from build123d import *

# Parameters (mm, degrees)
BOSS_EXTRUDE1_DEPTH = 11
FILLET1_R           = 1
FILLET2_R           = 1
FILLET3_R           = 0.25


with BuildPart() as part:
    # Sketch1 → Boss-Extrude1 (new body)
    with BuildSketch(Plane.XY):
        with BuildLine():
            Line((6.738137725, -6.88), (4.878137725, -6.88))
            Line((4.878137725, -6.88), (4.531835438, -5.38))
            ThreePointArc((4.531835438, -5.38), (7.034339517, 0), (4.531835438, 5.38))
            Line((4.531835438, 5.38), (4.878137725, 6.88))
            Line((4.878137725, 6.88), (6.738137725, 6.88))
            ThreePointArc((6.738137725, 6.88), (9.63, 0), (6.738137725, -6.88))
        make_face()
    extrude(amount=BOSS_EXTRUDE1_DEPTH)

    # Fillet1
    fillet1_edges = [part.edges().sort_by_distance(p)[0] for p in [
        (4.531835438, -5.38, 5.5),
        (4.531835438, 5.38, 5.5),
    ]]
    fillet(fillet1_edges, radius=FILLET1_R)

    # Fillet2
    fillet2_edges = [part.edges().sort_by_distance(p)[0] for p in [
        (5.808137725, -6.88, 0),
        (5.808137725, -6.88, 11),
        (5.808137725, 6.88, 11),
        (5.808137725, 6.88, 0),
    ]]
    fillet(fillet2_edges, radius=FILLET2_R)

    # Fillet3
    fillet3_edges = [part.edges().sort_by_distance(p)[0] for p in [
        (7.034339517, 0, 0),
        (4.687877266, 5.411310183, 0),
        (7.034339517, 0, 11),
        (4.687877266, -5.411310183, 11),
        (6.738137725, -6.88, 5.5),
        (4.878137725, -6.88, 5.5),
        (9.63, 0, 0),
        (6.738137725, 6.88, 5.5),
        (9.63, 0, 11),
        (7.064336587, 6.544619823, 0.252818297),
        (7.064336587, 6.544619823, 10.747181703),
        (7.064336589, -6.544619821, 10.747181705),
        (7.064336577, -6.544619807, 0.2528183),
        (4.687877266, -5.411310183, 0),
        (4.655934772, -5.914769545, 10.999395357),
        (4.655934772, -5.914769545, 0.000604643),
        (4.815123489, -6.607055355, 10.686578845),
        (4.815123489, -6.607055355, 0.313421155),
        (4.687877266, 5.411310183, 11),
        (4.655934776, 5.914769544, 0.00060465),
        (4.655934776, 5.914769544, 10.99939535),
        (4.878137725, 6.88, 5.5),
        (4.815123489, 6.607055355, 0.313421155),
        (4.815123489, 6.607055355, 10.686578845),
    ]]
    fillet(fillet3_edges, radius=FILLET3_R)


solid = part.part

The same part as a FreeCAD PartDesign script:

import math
import FreeCAD as App
import Part
import Sketcher
Q = App.Units.Quantity


def edges_at(feature, points):
    """Names of the edges that pass closest to the given points."""
    edges = feature.Shape.Edges
    near = lambda p: min(range(len(edges)), key=lambda i: edges[i].distToShape(Part.Vertex(*p))[0])
    return sorted({f"Edge{near(p) + 1}" for p in points})

doc = App.newDocument("Part")
body = doc.addObject("PartDesign::Body", "Body")

sketch1 = body.newObject("Sketcher::SketchObject", "Sketch")
sketch1.AttachmentSupport = (doc.getObject("XY_Plane"), [""])
sketch1.MapMode = "FlatFace"
sketch1.addGeometry([
    Part.LineSegment(App.Vector(4.9, -6.9, 0), App.Vector(6.7, -6.9, 0)),
    Part.ArcOfCircle(Part.Circle(App.Vector(0, 0, 0), App.Vector(0, 0, 1), 9.6), math.radians(-46), math.radians(46)),
    Part.LineSegment(App.Vector(6.7, 6.9, 0), App.Vector(4.9, 6.9, 0)),
    Part.LineSegment(App.Vector(4.9, 6.9, 0), App.Vector(4.5, 5.4, 0)),
    Part.ArcOfCircle(Part.Circle(App.Vector(0, 0, 0), App.Vector(0, 0, 1), 7), math.radians(-50), math.radians(50)),
    Part.LineSegment(App.Vector(4.5, -5.4, 0), App.Vector(4.9, -6.9, 0)),
], False)
sketch1.addConstraint([
    Sketcher.Constraint("Coincident", 0, 2, 1, 1),
    Sketcher.Constraint("Coincident", 1, 2, 2, 1),
    Sketcher.Constraint("Coincident", 2, 2, 3, 1),
    Sketcher.Constraint("Coincident", 3, 2, 4, 2),
    Sketcher.Constraint("Coincident", 4, 1, 5, 1),
    Sketcher.Constraint("Coincident", 5, 2, 0, 1),
    Sketcher.Constraint("Horizontal", 0),
    Sketcher.Constraint("Horizontal", 2),
    Sketcher.Constraint("Coincident", 1, 3, -1, 1),
    Sketcher.Constraint("Coincident", 4, 3, -1, 1),
    Sketcher.Constraint("Symmetric", 2, 2, 5, 2, -1),
    Sketcher.Constraint("Vertical", 3, 2, 4, 1),
    Sketcher.Constraint("Angle", 3, Q("-103 deg")),
    Sketcher.Constraint("Radius", 1, Q("9.63 mm")),
    Sketcher.Constraint("DistanceX", 0, 1, 0, 2, Q("1.86 mm")),
    Sketcher.Constraint("DistanceY", 3, 2, 2, 2, Q("1.5 mm")),
    Sketcher.Constraint("DistanceY", 0, 2, -1, 1, Q("6.88 mm")),
])
pad1 = body.newObject("PartDesign::Pad", "Pad")
pad1.Profile = sketch1
pad1.Length = 11
doc.recompute()

fillet = body.newObject("PartDesign::Fillet", "Fillet")
fillet.Base = (pad1, edges_at(pad1, [(4.532, -5.38, 5.5), (4.532, 5.38, 5.5)]))
fillet.Radius = 1
doc.recompute()

fillet2 = body.newObject("PartDesign::Fillet", "Fillet001")
fillet2.Base = (fillet, edges_at(fillet, [
    (5.808, -6.88, 0),
    (5.808, -6.88, 11),
    (5.808, 6.88, 11),
    (5.808, 6.88, 0),
]))
fillet2.Radius = 1
doc.recompute()

fillet3 = body.newObject("PartDesign::Fillet", "Fillet002")
fillet3.Base = (fillet2, edges_at(fillet2, [
    (7.034, 0, 0),
    (4.688, 5.411, 0),
    (7.034, 0, 11),
    (4.688, -5.411, 11),
    (6.738, -6.88, 5.5),
    (4.878, -6.88, 5.5),
    (9.63, 0, 0),
    (6.738, 6.88, 5.5),
    (9.63, 0, 11),
    (7.064, 6.545, 0.253),
    (7.064, 6.545, 10.747),
    (7.064, -6.545, 10.747),
    (7.064, -6.545, 0.253),
    (4.688, -5.411, 0),
    (4.656, -5.915, 10.999),
    (4.656, -5.915, 0.001),
    (4.815, -6.607, 10.687),
    (4.815, -6.607, 0.313),
    (4.688, 5.411, 11),
    (4.656, 5.915, 0.001),
    (4.656, 5.915, 10.999),
    (4.878, 6.88, 5.5),
    (4.815, 6.607, 0.313),
    (4.815, 6.607, 10.687),
]))
fillet3.Radius = 0.25

doc.recompute()
